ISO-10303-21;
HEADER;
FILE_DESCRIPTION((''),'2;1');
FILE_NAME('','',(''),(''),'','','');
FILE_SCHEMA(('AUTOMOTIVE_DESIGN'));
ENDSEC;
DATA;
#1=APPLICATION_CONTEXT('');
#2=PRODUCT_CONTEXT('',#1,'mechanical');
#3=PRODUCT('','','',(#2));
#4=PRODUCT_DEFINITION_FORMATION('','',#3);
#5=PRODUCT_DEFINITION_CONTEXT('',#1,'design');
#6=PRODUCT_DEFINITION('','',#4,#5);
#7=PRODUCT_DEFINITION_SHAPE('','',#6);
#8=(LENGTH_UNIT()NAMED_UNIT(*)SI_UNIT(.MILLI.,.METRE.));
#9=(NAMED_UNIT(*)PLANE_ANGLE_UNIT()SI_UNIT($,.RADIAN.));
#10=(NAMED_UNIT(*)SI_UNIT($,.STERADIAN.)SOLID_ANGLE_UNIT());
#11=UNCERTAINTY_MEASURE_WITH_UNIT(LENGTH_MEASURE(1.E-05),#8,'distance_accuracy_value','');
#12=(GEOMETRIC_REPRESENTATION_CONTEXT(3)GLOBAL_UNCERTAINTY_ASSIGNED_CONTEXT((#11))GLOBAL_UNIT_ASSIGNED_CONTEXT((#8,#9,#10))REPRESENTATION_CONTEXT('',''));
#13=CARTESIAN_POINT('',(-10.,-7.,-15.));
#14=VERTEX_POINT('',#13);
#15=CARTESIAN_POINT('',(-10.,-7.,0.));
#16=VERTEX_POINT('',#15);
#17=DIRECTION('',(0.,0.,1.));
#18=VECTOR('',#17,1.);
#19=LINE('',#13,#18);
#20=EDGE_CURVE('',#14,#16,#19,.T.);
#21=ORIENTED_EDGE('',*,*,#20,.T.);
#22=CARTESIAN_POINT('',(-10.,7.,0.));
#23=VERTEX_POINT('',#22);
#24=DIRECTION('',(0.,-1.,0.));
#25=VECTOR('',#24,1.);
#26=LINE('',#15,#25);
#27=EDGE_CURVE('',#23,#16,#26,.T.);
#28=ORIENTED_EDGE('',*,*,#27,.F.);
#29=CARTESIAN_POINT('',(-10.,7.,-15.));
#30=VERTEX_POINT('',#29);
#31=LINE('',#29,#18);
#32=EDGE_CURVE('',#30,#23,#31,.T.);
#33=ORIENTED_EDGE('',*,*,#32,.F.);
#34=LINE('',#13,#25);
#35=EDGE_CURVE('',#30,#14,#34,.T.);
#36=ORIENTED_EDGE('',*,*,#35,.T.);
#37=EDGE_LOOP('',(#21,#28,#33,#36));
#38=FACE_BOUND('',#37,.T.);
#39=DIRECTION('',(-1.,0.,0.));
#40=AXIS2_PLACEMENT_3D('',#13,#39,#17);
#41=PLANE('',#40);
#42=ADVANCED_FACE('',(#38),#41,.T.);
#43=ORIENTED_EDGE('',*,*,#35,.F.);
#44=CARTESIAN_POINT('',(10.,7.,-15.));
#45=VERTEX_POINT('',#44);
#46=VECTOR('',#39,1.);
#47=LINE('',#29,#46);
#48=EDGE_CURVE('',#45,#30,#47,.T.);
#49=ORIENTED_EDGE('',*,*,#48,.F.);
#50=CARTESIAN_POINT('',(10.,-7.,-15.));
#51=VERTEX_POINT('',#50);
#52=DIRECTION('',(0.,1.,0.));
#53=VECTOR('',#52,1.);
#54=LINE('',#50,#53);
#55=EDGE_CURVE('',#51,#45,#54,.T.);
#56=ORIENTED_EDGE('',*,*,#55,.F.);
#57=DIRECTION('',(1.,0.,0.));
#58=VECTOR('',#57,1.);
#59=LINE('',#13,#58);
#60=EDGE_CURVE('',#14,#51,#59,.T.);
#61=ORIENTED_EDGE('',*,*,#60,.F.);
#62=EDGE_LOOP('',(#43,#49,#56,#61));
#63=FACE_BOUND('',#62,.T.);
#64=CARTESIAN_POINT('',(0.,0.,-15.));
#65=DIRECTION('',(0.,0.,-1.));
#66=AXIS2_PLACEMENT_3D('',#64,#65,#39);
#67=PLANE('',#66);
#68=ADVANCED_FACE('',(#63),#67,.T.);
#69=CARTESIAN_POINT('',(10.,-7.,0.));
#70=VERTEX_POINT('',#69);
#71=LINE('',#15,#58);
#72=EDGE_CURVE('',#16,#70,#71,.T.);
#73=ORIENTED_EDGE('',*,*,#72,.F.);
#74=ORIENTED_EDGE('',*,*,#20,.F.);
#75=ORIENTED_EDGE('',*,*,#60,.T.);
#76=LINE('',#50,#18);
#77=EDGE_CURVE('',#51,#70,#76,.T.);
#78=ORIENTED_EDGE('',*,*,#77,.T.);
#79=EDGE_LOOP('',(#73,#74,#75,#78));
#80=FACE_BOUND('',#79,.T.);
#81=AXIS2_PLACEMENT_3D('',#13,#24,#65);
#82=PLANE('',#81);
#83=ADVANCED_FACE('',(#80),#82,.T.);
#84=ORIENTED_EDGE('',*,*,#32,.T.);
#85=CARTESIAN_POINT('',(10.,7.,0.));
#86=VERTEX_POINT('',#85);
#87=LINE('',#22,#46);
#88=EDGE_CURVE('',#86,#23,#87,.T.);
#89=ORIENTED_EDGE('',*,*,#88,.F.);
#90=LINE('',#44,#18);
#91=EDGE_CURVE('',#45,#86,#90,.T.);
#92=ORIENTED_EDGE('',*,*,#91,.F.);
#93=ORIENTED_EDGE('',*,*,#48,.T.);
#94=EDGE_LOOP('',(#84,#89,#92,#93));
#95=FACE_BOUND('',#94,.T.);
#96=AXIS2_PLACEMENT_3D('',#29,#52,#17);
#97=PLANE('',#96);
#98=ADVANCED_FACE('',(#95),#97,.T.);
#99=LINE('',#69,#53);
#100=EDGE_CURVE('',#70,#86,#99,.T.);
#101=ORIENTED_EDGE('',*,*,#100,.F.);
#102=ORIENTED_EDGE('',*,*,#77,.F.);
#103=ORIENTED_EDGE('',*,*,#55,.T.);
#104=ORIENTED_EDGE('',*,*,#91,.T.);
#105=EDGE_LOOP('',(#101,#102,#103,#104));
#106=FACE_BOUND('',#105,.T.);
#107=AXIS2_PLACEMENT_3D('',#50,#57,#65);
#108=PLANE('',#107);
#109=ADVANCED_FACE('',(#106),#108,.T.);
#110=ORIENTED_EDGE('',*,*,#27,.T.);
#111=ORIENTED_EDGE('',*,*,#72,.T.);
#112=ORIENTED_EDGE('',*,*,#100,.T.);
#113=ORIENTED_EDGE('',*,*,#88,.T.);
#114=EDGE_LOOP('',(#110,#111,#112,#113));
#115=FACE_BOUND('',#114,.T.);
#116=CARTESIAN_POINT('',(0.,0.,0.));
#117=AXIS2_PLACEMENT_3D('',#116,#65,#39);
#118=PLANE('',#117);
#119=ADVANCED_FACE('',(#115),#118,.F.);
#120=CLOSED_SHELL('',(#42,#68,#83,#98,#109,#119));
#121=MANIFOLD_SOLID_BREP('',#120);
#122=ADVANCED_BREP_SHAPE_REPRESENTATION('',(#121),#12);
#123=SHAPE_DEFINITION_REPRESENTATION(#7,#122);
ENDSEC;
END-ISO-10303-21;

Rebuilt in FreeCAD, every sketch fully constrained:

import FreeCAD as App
import Part
import Sketcher
from FreeCAD import Vector
Q = App.Units.Quantity

doc = App.newDocument("Part")
body = doc.addObject("PartDesign::Body", "Body")

# Sketch on XY plane
sketch1 = body.newObject("Sketcher::SketchObject", "Sketch")
sketch1.AttachmentSupport = (doc.getObject("XY_Plane"), [""])
sketch1.MapMode = "FlatFace"
sketch1.addGeometry([
    Part.LineSegment(Vector(-10, 7, 0), Vector(-10, -7, 0)),
    Part.LineSegment(Vector(-10, -7, 0), Vector(10, -7, 0)),
    Part.LineSegment(Vector(10, -7, 0), Vector(10, 7, 0)),
    Part.LineSegment(Vector(10, 7, 0), Vector(-10, 7, 0)),
], False)
sketch1.addConstraint([
    Sketcher.Constraint("Coincident", 0, 2, 1, 1),
    Sketcher.Constraint("Coincident", 1, 2, 2, 1),
    Sketcher.Constraint("Coincident", 2, 2, 3, 1),
    Sketcher.Constraint("Coincident", 3, 2, 0, 1),
    Sketcher.Constraint("Vertical", 0),
    Sketcher.Constraint("Horizontal", 1),
    Sketcher.Constraint("Vertical", 2),
    Sketcher.Constraint("Horizontal", 3),
    Sketcher.Constraint("Symmetric", 0, 2, 2, 2, -1, 1),
    Sketcher.Constraint("DistanceX", 1, 1, 1, 2, Q("20 mm")),
    Sketcher.Constraint("DistanceY", 0, 2, 0, 1, Q("14 mm")),
])
pad1 = body.newObject("PartDesign::Pad", "Pad")
pad1.Profile = sketch1
pad1.Length = 15
pad1.Reversed = True

doc.recompute()
